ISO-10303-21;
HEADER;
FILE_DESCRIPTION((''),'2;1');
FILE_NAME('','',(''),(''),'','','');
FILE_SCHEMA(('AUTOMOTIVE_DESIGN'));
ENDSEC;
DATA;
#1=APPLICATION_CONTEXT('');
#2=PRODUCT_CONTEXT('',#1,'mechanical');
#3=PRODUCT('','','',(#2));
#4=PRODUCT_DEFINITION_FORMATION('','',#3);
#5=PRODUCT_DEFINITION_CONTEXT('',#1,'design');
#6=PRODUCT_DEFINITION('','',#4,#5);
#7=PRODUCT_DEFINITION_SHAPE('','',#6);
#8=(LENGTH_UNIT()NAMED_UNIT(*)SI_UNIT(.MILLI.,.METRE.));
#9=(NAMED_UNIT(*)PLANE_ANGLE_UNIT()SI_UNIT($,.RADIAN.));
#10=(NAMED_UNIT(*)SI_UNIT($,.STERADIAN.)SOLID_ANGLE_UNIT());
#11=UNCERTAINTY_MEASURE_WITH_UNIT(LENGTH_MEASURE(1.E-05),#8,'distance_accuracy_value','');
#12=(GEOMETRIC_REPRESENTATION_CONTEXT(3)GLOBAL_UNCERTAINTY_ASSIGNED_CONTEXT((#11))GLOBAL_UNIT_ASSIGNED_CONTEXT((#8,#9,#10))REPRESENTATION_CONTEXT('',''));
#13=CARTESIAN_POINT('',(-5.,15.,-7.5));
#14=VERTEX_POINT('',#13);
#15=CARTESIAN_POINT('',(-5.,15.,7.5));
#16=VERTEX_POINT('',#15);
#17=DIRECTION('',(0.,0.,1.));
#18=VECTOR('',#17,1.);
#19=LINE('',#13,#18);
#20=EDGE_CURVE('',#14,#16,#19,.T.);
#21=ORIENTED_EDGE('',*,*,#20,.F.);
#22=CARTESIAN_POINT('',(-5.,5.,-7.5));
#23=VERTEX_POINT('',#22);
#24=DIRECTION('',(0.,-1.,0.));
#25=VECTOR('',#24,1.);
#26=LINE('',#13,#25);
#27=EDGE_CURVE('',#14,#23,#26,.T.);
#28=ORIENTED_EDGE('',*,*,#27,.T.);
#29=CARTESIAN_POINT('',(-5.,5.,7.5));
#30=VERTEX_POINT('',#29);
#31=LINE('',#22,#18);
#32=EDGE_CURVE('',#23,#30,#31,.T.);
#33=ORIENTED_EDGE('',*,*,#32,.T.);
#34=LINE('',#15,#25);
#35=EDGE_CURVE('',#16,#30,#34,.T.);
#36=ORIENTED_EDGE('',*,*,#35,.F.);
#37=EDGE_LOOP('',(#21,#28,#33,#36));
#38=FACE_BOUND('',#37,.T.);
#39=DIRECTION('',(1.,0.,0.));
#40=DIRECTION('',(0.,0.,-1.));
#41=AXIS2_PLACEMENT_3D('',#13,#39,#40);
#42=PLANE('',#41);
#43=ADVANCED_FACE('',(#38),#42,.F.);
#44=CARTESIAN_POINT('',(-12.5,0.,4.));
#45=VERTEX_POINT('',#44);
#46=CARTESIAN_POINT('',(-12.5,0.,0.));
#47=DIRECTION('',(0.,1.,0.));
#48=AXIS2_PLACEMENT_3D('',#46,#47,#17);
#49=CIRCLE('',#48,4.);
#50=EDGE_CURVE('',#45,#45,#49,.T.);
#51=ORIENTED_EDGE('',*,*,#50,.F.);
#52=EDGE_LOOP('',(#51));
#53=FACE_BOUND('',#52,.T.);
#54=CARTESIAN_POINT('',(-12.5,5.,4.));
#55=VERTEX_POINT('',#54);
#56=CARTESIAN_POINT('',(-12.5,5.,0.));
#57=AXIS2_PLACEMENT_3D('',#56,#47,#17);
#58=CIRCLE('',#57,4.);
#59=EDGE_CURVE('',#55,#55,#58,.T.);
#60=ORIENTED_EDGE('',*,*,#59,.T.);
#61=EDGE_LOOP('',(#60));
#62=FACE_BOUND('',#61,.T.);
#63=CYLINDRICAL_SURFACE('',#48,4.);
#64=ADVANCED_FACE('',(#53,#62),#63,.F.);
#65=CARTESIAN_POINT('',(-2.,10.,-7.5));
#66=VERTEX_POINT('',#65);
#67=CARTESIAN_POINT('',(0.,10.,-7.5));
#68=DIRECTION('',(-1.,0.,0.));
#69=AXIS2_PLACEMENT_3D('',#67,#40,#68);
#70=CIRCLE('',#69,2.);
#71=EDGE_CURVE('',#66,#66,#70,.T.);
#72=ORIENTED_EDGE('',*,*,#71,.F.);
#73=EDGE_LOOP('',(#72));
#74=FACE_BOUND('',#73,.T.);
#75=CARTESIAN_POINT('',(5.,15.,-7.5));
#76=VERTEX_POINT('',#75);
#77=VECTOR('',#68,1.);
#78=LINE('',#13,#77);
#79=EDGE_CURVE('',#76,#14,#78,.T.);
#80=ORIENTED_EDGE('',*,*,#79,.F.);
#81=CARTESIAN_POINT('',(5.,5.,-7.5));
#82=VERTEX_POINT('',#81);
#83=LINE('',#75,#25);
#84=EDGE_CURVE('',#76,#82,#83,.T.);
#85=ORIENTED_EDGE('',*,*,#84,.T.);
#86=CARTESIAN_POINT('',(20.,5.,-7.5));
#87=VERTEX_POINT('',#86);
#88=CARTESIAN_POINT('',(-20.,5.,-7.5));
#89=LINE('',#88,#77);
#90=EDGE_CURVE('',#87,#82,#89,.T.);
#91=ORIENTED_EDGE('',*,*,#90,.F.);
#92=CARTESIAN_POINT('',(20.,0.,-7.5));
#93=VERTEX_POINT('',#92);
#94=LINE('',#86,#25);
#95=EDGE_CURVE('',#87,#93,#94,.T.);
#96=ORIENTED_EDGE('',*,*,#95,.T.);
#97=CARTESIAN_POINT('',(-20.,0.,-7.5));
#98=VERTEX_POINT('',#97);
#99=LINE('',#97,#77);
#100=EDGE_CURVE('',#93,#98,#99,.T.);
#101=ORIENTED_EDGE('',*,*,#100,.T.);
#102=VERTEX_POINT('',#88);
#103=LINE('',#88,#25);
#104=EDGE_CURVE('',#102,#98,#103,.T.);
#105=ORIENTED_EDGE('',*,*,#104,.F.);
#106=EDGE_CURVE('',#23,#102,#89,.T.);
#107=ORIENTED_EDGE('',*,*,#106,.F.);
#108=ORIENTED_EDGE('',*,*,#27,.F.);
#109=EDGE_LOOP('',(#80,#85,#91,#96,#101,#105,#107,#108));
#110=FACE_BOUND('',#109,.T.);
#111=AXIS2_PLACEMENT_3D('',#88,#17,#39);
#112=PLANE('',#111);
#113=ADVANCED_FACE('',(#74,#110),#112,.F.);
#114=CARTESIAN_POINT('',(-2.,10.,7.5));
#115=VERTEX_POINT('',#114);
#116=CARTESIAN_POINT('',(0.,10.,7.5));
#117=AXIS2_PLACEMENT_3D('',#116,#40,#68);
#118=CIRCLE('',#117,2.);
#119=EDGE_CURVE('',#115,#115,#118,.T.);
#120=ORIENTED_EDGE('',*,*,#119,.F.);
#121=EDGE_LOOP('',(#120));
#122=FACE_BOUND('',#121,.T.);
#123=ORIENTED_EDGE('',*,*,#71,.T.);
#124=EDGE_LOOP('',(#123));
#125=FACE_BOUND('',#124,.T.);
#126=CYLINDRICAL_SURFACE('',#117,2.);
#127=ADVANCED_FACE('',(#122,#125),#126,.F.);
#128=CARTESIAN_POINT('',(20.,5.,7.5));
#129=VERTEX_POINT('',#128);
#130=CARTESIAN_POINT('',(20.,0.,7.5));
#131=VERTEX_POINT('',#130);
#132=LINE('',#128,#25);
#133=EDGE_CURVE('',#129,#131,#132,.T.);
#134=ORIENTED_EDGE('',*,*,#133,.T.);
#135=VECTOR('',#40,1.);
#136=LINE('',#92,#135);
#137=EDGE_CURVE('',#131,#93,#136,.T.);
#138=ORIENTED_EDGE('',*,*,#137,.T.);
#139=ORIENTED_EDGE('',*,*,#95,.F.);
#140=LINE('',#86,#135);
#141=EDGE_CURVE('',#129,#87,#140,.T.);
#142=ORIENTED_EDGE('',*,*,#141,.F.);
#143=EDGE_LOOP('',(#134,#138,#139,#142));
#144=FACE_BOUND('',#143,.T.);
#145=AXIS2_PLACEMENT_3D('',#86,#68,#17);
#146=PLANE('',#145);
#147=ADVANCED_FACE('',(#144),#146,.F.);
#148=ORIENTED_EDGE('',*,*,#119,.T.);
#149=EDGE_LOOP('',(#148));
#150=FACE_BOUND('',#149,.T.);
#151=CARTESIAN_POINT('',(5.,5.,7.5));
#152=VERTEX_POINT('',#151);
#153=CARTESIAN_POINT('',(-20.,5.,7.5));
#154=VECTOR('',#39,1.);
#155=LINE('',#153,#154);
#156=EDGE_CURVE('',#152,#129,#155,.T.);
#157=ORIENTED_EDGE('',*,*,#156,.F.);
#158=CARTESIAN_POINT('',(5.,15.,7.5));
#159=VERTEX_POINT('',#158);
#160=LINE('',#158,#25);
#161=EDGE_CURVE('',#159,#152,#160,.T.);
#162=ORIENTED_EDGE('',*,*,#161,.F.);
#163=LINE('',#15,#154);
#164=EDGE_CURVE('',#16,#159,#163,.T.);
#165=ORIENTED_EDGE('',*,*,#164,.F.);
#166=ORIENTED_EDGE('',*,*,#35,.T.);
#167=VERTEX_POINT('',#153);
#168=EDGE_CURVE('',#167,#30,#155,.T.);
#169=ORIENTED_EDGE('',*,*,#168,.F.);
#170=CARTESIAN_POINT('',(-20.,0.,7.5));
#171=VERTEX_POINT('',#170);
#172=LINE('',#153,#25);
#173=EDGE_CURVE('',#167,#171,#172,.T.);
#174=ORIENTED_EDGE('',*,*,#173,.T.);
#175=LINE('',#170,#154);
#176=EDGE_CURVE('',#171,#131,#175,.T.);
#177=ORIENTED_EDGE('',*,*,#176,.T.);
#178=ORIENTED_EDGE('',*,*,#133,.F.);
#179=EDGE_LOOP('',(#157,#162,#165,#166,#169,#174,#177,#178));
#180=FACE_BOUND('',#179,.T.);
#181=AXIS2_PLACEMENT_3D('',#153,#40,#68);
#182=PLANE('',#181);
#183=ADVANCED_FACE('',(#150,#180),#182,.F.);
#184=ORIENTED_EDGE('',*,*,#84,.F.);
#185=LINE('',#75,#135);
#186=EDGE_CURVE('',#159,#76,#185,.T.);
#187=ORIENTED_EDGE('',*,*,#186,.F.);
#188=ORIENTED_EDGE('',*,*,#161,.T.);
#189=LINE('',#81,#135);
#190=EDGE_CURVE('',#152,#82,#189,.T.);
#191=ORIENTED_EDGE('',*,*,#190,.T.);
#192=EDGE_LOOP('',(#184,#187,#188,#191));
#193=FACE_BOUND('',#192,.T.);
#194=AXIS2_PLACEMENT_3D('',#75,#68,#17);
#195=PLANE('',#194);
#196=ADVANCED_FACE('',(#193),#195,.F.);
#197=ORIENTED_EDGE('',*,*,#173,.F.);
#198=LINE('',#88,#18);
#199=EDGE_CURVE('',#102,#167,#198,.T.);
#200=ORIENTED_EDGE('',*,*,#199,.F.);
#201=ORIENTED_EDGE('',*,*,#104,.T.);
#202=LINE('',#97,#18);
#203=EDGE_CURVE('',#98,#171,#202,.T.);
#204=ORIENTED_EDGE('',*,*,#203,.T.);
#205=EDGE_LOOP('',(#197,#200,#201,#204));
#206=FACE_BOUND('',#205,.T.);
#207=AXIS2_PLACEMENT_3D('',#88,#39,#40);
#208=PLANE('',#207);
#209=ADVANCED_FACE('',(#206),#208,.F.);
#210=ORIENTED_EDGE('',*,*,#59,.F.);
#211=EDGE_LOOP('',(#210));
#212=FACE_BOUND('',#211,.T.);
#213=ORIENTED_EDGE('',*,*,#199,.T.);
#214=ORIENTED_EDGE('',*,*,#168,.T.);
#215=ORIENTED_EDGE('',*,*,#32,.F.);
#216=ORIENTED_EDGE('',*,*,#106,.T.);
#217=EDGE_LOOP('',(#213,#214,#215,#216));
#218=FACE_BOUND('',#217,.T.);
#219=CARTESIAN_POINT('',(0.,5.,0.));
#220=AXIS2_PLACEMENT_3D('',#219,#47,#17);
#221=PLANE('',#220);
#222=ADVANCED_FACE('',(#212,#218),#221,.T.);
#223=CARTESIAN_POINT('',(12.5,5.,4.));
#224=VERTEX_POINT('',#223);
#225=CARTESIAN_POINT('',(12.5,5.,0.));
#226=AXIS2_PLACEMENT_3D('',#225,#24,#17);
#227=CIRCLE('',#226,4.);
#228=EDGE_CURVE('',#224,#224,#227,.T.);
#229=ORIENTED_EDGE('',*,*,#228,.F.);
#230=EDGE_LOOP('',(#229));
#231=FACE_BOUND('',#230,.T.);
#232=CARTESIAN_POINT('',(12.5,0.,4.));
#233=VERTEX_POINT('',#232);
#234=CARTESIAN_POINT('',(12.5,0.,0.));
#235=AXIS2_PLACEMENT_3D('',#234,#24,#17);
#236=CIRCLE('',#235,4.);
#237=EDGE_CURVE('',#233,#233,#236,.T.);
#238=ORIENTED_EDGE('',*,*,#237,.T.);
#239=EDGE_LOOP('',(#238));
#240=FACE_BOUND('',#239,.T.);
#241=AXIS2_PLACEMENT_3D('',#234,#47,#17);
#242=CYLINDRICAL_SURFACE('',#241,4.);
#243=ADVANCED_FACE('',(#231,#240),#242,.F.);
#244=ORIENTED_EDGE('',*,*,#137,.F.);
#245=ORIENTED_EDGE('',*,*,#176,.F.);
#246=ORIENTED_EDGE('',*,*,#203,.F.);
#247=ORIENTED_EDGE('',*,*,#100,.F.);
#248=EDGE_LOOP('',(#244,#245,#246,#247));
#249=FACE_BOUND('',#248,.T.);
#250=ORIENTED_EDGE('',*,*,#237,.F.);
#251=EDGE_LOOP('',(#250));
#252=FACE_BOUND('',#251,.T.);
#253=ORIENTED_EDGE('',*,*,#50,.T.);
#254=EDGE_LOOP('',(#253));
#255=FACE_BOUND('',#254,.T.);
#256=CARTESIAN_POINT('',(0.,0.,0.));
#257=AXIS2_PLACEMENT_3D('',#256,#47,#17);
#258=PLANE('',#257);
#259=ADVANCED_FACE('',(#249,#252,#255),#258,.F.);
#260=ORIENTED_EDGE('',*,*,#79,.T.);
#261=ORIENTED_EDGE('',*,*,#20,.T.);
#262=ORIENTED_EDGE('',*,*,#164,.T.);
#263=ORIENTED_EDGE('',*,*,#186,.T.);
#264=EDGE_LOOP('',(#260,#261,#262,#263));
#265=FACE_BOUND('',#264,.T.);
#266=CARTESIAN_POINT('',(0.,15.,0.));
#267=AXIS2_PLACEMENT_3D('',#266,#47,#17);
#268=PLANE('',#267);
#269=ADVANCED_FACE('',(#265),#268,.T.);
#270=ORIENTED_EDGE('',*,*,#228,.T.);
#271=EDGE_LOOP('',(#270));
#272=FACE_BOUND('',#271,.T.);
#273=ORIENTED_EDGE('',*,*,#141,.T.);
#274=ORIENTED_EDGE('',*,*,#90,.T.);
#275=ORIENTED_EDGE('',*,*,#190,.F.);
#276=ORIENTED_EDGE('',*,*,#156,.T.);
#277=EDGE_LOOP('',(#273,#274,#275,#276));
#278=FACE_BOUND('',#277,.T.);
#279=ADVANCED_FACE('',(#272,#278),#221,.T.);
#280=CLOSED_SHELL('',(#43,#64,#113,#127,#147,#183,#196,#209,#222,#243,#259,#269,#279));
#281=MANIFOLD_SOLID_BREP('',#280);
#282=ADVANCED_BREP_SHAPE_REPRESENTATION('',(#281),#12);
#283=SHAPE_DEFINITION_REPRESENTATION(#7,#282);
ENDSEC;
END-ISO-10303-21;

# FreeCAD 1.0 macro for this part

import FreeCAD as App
import Part
import Sketcher


def add_polygon(sketch, points):
    """Adds a closed chain of lines whose ends are joined by coincident constraints."""
    first, n = sketch.GeometryCount, len(points)
    for a, b in zip(points, points[1:] + points[:1]):
        sketch.addGeometry(Part.LineSegment(App.Vector(*a, 0), App.Vector(*b, 0)), False)
    for i in range(n):
        sketch.addConstraint(Sketcher.Constraint("Coincident", first + i, 2, first + (i + 1) % n, 1))

doc = App.newDocument("Part")
body = doc.addObject("PartDesign::Body", "Body")

# Sketch on XZ plane
sketch1 = doc.addObject("Sketcher::SketchObject", "Sketch")
body.addObject(sketch1)
sketch1.AttachmentSupport = (doc.XZ_Plane, [""])
sketch1.MapMode = "FlatFace"
add_polygon(sketch1, [(-20, -8), (-20, 8), (20, 8), (20, -8)])  # lines 0-3
sketch1.addConstraint(Sketcher.Constraint("Vertical", 0))
sketch1.addConstraint(Sketcher.Constraint("Horizontal", 1))
sketch1.addConstraint(Sketcher.Constraint("Vertical", 2))
sketch1.addConstraint(Sketcher.Constraint("Horizontal", 3))
sketch1.addConstraint(Sketcher.Constraint("Symmetric", 0, 2, 2, 2, -1, 1))
sketch1.addConstraint(Sketcher.Constraint("DistanceX", 1, 1, 1, 2, 40.0))
sketch1.addConstraint(Sketcher.Constraint("DistanceY", 0, 1, 0, 2, 15.0))
pad1 = doc.addObject("PartDesign::Pad", "Pad")
body.addObject(pad1)
pad1.Profile = sketch1
pad1.Length = 5
pad1.Reversed = True

# Sketch on XZ plane
sketch2 = doc.addObject("Sketcher::SketchObject", "Sketch001")
body.addObject(sketch2)
sketch2.AttachmentSupport = (doc.XZ_Plane, [""])
sketch2.MapMode = "FlatFace"
sketch2.AttachmentOffset = App.Placement(App.Vector(0, 0, -5), App.Rotation())
add_polygon(sketch2, [(-5, -8), (-5, 8), (5, 8), (5, -8)])  # lines 0-3
sketch2.addConstraint(Sketcher.Constraint("Vertical", 0))
sketch2.addConstraint(Sketcher.Constraint("Horizontal", 1))
sketch2.addConstraint(Sketcher.Constraint("Vertical", 2))
sketch2.addConstraint(Sketcher.Constraint("Horizontal", 3))
sketch2.addConstraint(Sketcher.Constraint("Symmetric", 0, 2, 2, 2, -1, 1))
sketch2.addConstraint(Sketcher.Constraint("DistanceX", 1, 1, 1, 2, 10.0))
sketch2.addConstraint(Sketcher.Constraint("DistanceY", 0, 1, 0, 2, 15.0))
pad2 = doc.addObject("PartDesign::Pad", "Pad001")
body.addObject(pad2)
pad2.Profile = sketch2
pad2.Length = 10
pad2.Reversed = True

# Sketch on XY plane
sketch3 = doc.addObject("Sketcher::SketchObject", "Sketch002")
body.addObject(sketch3)
sketch3.AttachmentSupport = (doc.XY_Plane, [""])
sketch3.MapMode = "FlatFace"
sketch3.AttachmentOffset = App.Placement(App.Vector(0, 0, -7.5), App.Rotation())
sketch3.addGeometry(Part.Circle(App.Vector(0, 10, 0), App.Vector(0, 0, 1), 2), False)
sketch3.addConstraint(Sketcher.Constraint("PointOnObject", 0, 3, -2))
sketch3.addConstraint(Sketcher.Constraint("Diameter", 0, 4.0))
sketch3.addConstraint(Sketcher.Constraint("DistanceY", -1, 1, 0, 3, 10.0))
pocket1 = doc.addObject("PartDesign::Pocket", "Pocket")
body.addObject(pocket1)
pocket1.Profile = sketch3
pocket1.Type = "ThroughAll"
pocket1.Reversed = True

# Sketch on XZ plane
sketch4 = doc.addObject("Sketcher::SketchObject", "Sketch003")
body.addObject(sketch4)
sketch4.AttachmentSupport = (doc.XZ_Plane, [""])
sketch4.MapMode = "FlatFace"
sketch4.AttachmentOffset = App.Placement(App.Vector(0, 0, -5), App.Rotation())
sketch4.addGeometry(Part.Circle(App.Vector(-12.5, 0, 0), App.Vector(0, 0, 1), 4), False)
sketch4.addConstraint(Sketcher.Constraint("PointOnObject", 0, 3, -1))
sketch4.addConstraint(Sketcher.Constraint("Diameter", 0, 8.0))
sketch4.addConstraint(Sketcher.Constraint("DistanceX", 0, 3, -1, 1, 12.5))
pocket2 = doc.addObject("PartDesign::Pocket", "Pocket001")
body.addObject(pocket2)
pocket2.Profile = sketch4
pocket2.Type = "ThroughAll"
pocket2.Reversed = True
doc.recompute()

mirrored = doc.addObject("PartDesign::Mirrored", "Mirrored")
body.addObject(mirrored)
mirrored.Originals = [pocket2]
mirrored.MirrorPlane = (doc.YZ_Plane, [""])
body.Tip = mirrored

doc.recompute()
